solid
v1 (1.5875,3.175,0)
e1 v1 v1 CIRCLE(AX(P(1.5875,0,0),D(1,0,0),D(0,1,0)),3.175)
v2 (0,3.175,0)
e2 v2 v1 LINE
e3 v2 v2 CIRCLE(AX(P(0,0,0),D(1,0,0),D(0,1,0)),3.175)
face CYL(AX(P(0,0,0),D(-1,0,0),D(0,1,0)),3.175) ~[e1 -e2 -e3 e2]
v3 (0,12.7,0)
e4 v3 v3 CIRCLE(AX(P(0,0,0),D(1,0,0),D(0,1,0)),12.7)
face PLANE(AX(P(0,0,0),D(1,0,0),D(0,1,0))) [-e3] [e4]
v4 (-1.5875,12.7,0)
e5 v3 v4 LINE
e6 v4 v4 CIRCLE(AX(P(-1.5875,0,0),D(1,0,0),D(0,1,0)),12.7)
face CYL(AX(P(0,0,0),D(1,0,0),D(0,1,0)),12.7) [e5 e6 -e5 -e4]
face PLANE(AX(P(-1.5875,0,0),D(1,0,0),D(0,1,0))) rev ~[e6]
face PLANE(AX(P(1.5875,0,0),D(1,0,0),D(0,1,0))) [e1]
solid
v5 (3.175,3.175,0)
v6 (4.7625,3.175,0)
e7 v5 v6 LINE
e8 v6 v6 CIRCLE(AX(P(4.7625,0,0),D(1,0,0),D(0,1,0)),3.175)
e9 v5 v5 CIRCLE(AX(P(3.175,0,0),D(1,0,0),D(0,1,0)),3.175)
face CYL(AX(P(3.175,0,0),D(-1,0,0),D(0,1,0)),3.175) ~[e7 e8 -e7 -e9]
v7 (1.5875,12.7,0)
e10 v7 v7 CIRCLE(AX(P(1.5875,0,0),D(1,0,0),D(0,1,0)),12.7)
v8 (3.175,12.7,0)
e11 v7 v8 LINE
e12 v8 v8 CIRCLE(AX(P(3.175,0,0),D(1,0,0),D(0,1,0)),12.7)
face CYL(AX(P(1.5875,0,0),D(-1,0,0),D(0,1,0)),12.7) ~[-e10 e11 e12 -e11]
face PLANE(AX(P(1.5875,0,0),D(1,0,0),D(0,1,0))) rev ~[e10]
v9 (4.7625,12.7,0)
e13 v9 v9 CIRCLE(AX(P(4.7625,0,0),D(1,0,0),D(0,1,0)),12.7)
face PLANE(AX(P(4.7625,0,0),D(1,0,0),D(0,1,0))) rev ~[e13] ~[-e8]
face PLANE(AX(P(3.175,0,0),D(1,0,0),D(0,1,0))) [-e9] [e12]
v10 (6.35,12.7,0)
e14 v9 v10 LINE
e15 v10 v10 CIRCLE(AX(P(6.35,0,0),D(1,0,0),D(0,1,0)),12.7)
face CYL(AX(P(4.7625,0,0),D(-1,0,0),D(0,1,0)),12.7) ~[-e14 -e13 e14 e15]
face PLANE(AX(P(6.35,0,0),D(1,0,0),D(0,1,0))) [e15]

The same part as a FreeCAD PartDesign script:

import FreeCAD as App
import Part
import Sketcher
Q = App.Units.Quantity

doc = App.newDocument("Part")
params = doc.addObject("Spreadsheet::Sheet", "Params")
for row, (alias, value) in enumerate([
    ("sketch1_diameter", "1 in"),
    ("pad1_length", "0.0625 in"),
    ("sketch2_diameter", "0.25 in"),
    ("pad2_length", "0.0625 in"),
    ("sketch3_diameter", "1 in"),
    ("pad3_length", "0.0625 in"),
    ("sketch4_diameter", "0.25 in"),
    ("pad4_length", "0.0625 in"),
    ("sketch5_diameter", "1 in"),
    ("pad5_length", "0.0625 in"),
], start=1):
    params.set(f"A{row}", alias)
    params.set(f"B{row}", "=" + value)
    params.setAlias(f"B{row}", alias)

body = doc.addObject("PartDesign::Body", "Body")

# Sketch on YZ plane
sketch1 = doc.addObject("Sketcher::SketchObject", "Sketch")
body.addObject(sketch1)
sketch1.AttachmentSupport = (doc.YZ_Plane, [""])
sketch1.MapMode = "FlatFace"
sketch1.addGeometry(Part.Circle(App.Vector(0, 0, 0), App.Vector(0, 0, 1), 13), False)
sketch1.addConstraint([
    Sketcher.Constraint("Coincident", 0, 3, -1, 1),
    Sketcher.Constraint("Diameter", 0, Q("1 in")),
])
sketch1.setExpression("Constraints[1]", "Params.sketch1_diameter")
pad1 = doc.addObject("PartDesign::Pad", "Pad")
body.addObject(pad1)
pad1.Profile = sketch1
pad1.setExpression("Length", "Params.pad1_length")
pad1.Reversed = True

# Sketch on YZ plane
sketch2 = doc.addObject("Sketcher::SketchObject", "Sketch001")
body.addObject(sketch2)
sketch2.AttachmentSupport = (doc.YZ_Plane, [""])
sketch2.MapMode = "FlatFace"
sketch2.addGeometry(Part.Circle(App.Vector(0, 0, 0), App.Vector(0, 0, 1), 3.2), False)
sketch2.addConstraint([
    Sketcher.Constraint("Coincident", 0, 3, -1, 1),
    Sketcher.Constraint("Diameter", 0, Q("0.25 in")),
])
sketch2.setExpression("Constraints[1]", "Params.sketch2_diameter")
pad2 = doc.addObject("PartDesign::Pad", "Pad001")
body.addObject(pad2)
pad2.Profile = sketch2
pad2.setExpression("Length", "Params.pad2_length")
body2 = doc.addObject("PartDesign::Body", "Body001")

# Sketch on YZ plane
sketch3 = doc.addObject("Sketcher::SketchObject", "Sketch002")
body2.addObject(sketch3)
sketch3.AttachmentSupport = (doc.getObject("YZ_Plane001"), [""])
sketch3.MapMode = "FlatFace"
sketch3.AttachmentOffset = App.Placement(App.Vector(0, 0, 0.0625 * 25.4), App.Rotation())
sketch3.addGeometry(Part.Circle(App.Vector(0, 0, 0), App.Vector(0, 0, 1), 13), False)
sketch3.addConstraint([
    Sketcher.Constraint("Coincident", 0, 3, -1, 1),
    Sketcher.Constraint("Diameter", 0, Q("1 in")),
])
sketch3.setExpression("Constraints[1]", "Params.sketch3_diameter")
pad3 = doc.addObject("PartDesign::Pad", "Pad002")
body2.addObject(pad3)
pad3.Profile = sketch3
pad3.setExpression("Length", "Params.pad3_length")

# Sketch on YZ plane
sketch4 = doc.addObject("Sketcher::SketchObject", "Sketch003")
body2.addObject(sketch4)
sketch4.AttachmentSupport = (doc.getObject("YZ_Plane001"), [""])
sketch4.MapMode = "FlatFace"
sketch4.AttachmentOffset = App.Placement(App.Vector(0, 0, 0.125 * 25.4), App.Rotation())
sketch4.addGeometry(Part.Circle(App.Vector(0, 0, 0), App.Vector(0, 0, 1), 3.2), False)
sketch4.addConstraint([
    Sketcher.Constraint("Coincident", 0, 3, -1, 1),
    Sketcher.Constraint("Diameter", 0, Q("0.25 in")),
])
sketch4.setExpression("Constraints[1]", "Params.sketch4_diameter")
pad4 = doc.addObject("PartDesign::Pad", "Pad003")
body2.addObject(pad4)
pad4.Profile = sketch4
pad4.setExpression("Length", "Params.pad4_length")

# Sketch on YZ plane
sketch5 = doc.addObject("Sketcher::SketchObject", "Sketch004")
body2.addObject(sketch5)
sketch5.AttachmentSupport = (doc.getObject("YZ_Plane001"), [""])
sketch5.MapMode = "FlatFace"
sketch5.AttachmentOffset = App.Placement(App.Vector(0, 0, 0.1875 * 25.4), App.Rotation())
sketch5.addGeometry(Part.Circle(App.Vector(0, 0, 0), App.Vector(0, 0, 1), 13), False)
sketch5.addConstraint([
    Sketcher.Constraint("Coincident", 0, 3, -1, 1),
    Sketcher.Constraint("Diameter", 0, Q("1 in")),
])
sketch5.setExpression("Constraints[1]", "Params.sketch5_diameter")
pad5 = doc.addObject("PartDesign::Pad", "Pad004")
body2.addObject(pad5)
pad5.Profile = sketch5
pad5.setExpression("Length", "Params.pad5_length")

doc.recompute()
